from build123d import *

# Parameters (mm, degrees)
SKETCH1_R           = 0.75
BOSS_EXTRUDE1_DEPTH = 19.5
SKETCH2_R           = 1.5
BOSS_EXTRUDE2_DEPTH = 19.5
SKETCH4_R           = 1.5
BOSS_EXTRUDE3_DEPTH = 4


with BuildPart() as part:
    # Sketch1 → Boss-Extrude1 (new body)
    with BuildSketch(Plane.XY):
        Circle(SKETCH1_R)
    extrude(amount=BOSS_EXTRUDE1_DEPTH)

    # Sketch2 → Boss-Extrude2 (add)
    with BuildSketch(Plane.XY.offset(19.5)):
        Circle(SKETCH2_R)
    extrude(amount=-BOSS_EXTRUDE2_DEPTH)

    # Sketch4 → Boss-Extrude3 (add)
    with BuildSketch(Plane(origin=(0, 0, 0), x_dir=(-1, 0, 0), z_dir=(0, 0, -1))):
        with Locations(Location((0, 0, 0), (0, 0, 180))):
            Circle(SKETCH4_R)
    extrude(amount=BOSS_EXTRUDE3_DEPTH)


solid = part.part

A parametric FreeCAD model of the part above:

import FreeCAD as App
import Part
import Sketcher

doc = App.newDocument("Part")
body = doc.addObject("PartDesign::Body", "Body")

# Sketch on XY plane
sketch1 = body.newObject("Sketcher::SketchObject", "Sketch")
sketch1.AttachmentSupport = (doc.getObject("XY_Plane"), [""])
sketch1.MapMode = "FlatFace"
sketch1.addGeometry(Part.Circle(App.Vector(0, 0, 0), App.Vector(0, 0, 1), 0.8), False)
sketch1.addConstraint([
    Sketcher.Constraint("Coincident", 0, 3, -1, 1),
    Sketcher.Constraint("Diameter", 0, 1.5),
])
pad1 = body.newObject("PartDesign::Pad", "Pad")
pad1.Profile = sketch1
pad1.Length = 19.5

# Sketch on XY plane
sketch2 = body.newObject("Sketcher::SketchObject", "Sketch001")
sketch2.AttachmentSupport = (doc.getObject("XY_Plane"), [""])
sketch2.MapMode = "FlatFace"
sketch2.AttachmentOffset = App.Placement(App.Vector(0, 0, 19.5), App.Rotation())
sketch2.addGeometry(Part.Circle(App.Vector(0, 0, 0), App.Vector(0, 0, 1), 1.5), False)
sketch2.addConstraint([
    Sketcher.Constraint("Coincident", 0, 3, -1, 1),
    Sketcher.Constraint("Diameter", 0, 3.0),
])
pad2 = body.newObject("PartDesign::Pad", "Pad001")
pad2.Profile = sketch2
pad2.Length = 19.5
pad2.Reversed = True

# Sketch on XY plane
sketch3 = body.newObject("Sketcher::SketchObject", "Sketch002")
sketch3.AttachmentSupport = (doc.getObject("XY_Plane"), [""])
sketch3.MapMode = "FlatFace"
sketch3.addGeometry(Part.Circle(App.Vector(0, 0, 0), App.Vector(0, 0, 1), 1.5), False)
sketch3.addConstraint([
    Sketcher.Constraint("Coincident", 0, 3, -1, 1),
    Sketcher.Constraint("Diameter", 0, 3.0),
])
pad3 = body.newObject("PartDesign::Pad", "Pad002")
pad3.Profile = sketch3
pad3.Length = 4
pad3.Reversed = True

doc.recompute()
